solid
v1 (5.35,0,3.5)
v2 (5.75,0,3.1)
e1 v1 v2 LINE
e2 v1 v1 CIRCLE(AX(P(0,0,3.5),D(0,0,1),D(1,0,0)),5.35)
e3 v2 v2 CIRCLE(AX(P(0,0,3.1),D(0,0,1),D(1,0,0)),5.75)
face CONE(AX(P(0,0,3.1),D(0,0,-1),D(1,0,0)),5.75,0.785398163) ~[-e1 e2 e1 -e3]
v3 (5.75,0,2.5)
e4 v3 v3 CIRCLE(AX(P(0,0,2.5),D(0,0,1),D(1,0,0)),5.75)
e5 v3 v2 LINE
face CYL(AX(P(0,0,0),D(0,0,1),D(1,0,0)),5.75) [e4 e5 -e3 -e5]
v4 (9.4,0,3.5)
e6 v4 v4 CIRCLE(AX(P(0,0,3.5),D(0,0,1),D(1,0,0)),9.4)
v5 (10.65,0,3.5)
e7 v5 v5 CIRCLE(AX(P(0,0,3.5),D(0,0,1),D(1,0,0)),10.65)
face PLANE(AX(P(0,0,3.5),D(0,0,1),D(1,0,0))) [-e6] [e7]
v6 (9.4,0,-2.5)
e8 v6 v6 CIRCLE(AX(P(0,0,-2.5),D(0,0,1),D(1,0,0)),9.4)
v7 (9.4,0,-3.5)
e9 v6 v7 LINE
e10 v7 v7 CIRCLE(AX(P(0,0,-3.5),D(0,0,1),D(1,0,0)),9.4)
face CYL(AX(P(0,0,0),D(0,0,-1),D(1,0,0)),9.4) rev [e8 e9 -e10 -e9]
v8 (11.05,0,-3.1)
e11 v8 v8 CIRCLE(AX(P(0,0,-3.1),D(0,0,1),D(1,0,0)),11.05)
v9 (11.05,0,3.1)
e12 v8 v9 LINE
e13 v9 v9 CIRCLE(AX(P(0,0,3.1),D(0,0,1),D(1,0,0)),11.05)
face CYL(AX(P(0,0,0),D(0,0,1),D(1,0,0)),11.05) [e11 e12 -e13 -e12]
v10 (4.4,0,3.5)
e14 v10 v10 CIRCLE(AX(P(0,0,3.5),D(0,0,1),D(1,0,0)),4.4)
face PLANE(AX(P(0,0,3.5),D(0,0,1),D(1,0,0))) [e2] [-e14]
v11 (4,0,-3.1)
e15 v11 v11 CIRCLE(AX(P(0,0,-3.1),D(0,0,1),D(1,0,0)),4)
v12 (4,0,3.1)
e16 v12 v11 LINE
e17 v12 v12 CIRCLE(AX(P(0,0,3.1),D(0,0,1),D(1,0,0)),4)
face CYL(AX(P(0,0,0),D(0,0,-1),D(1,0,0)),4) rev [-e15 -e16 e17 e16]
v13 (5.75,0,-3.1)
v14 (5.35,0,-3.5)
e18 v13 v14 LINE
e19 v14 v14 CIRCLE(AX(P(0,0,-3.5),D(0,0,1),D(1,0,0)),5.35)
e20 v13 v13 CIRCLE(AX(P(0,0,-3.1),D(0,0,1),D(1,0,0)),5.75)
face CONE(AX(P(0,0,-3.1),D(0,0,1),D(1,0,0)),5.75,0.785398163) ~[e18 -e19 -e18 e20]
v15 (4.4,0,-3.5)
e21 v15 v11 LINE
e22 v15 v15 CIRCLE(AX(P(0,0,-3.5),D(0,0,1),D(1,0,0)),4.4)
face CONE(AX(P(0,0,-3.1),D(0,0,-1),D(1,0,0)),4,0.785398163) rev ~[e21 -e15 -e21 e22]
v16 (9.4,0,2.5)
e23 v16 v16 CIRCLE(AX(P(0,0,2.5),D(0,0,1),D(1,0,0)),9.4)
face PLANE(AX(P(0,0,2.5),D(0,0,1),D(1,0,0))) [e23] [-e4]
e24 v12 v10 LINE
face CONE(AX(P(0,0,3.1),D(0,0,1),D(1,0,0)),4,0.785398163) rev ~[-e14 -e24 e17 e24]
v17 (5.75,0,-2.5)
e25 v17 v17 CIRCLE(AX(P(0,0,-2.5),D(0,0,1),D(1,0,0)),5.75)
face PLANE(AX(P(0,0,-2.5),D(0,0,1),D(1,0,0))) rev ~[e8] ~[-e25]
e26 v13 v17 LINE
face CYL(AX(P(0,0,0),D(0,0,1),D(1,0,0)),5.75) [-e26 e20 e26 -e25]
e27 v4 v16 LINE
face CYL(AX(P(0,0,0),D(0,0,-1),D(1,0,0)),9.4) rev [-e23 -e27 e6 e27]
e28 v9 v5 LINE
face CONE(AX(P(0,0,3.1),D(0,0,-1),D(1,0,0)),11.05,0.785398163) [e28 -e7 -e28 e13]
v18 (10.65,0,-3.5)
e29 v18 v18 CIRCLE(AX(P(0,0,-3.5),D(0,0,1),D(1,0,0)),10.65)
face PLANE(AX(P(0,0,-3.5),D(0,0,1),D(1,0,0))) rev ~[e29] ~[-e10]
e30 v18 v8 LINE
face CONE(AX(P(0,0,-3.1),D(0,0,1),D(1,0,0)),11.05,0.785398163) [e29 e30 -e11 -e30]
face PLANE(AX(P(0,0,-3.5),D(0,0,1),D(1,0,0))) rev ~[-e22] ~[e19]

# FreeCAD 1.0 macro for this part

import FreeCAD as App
import Part
import Sketcher
from FreeCAD import Vector
Q = App.Units.Quantity


def edges_at(feature, points):
    """Names of the edges that pass closest to the given points."""
    edges = feature.Shape.Edges
    near = lambda p: min(range(len(edges)), key=lambda i: edges[i].distToShape(Part.Vertex(*p))[0])
    return sorted({f"Edge{near(p) + 1}" for p in points})

doc = App.newDocument("Part")
body = doc.addObject("PartDesign::Body", "Body")

# Sketch on XY plane
sketch1 = doc.addObject("Sketcher::SketchObject", "Sketch")
body.addObject(sketch1)
sketch1.AttachmentSupport = (doc.XY_Plane, [""])
sketch1.MapMode = "FlatFace"
sketch1.addGeometry(Part.Circle(Vector(0, 0, 0), Vector(0, 0, 1), 11.05), False)
sketch1.addGeometry(Part.Circle(Vector(0, 0, 0), Vector(0, 0, 1), 9.4), False)
sketch1.addConstraint(Sketcher.Constraint("Coincident", 0, 3, -1, 1))
sketch1.addConstraint(Sketcher.Constraint("Coincident", 1, 3, -1, 1))
sketch1.addConstraint(Sketcher.Constraint("Diameter", 0, Q("22.1 mm")))
sketch1.addConstraint(Sketcher.Constraint("Diameter", 1, Q("18.8 mm")))
pad1 = doc.addObject("PartDesign::Pad", "Pad")
body.addObject(pad1)
pad1.Profile = sketch1
pad1.Length = 7
pad1.Midplane = True
body2 = doc.addObject("PartDesign::Body", "Body001")

# Sketch on XY plane
sketch2 = doc.addObject("Sketcher::SketchObject", "Sketch001")
body2.addObject(sketch2)
sketch2.AttachmentSupport = (doc.getObject("XY_Plane001"), [""])
sketch2.MapMode = "FlatFace"
sketch2.addGeometry(Part.Circle(Vector(0, 0, 0), Vector(0, 0, 1), 5.75), False)
sketch2.addGeometry(Part.Circle(Vector(0, 0, 0), Vector(0, 0, 1), 4), False)
sketch2.addConstraint(Sketcher.Constraint("Coincident", 0, 3, -1, 1))
sketch2.addConstraint(Sketcher.Constraint("Coincident", 1, 3, -1, 1))
sketch2.addConstraint(Sketcher.Constraint("Diameter", 1, Q("8 mm")))
sketch2.addConstraint(Sketcher.Constraint("Diameter", 0, Q("11.5 mm")))
pad2 = doc.addObject("PartDesign::Pad", "Pad001")
body2.addObject(pad2)
pad2.Profile = sketch2
pad2.Length = 7
pad2.Midplane = True
body.AllowCompound = True
doc.recompute()

boolean = doc.addObject("PartDesign::Boolean", "Boolean")
body.addObject(boolean)
boolean.Type = "Fuse"
boolean.addObjects([body2])

# Sketch on XY plane
sketch3 = doc.addObject("Sketcher::SketchObject", "Sketch002")
body.addObject(sketch3)
sketch3.AttachmentSupport = (doc.XY_Plane, [""])
sketch3.MapMode = "FlatFace"
sketch3.addGeometry(Part.Circle(Vector(0, 0, 0), Vector(0, 0, 1), 9.4), False)
sketch3.addGeometry(Part.Circle(Vector(0, 0, 0), Vector(0, 0, 1), 5.75), False)
sketch3.addConstraint(Sketcher.Constraint("Coincident", 0, 3, -1, 1))
sketch3.addConstraint(Sketcher.Constraint("Coincident", 1, 3, -1, 1))
sketch3.addConstraint(Sketcher.Constraint("Diameter", 0, Q("18.8 mm")))
sketch3.addConstraint(Sketcher.Constraint("Diameter", 1, Q("11.5 mm")))
pad3 = doc.addObject("PartDesign::Pad", "Pad002")
body.addObject(pad3)
pad3.Profile = sketch3
pad3.Length = 5
pad3.Midplane = True
doc.recompute()

chamfer = doc.addObject("PartDesign::Chamfer", "Chamfer")
body.addObject(chamfer)
chamfer.Base = (pad3, edges_at(pad3, [
    (-11.05, 0, 3.5),
    (-11.05, 0, -3.5),
    (-4, 0, 3.5),
    (-5.75, 0, 3.5),
    (-5.75, 0, -3.5),
    (-4, 0, -3.5),
]))
chamfer.Size = 0.4

doc.recompute()
